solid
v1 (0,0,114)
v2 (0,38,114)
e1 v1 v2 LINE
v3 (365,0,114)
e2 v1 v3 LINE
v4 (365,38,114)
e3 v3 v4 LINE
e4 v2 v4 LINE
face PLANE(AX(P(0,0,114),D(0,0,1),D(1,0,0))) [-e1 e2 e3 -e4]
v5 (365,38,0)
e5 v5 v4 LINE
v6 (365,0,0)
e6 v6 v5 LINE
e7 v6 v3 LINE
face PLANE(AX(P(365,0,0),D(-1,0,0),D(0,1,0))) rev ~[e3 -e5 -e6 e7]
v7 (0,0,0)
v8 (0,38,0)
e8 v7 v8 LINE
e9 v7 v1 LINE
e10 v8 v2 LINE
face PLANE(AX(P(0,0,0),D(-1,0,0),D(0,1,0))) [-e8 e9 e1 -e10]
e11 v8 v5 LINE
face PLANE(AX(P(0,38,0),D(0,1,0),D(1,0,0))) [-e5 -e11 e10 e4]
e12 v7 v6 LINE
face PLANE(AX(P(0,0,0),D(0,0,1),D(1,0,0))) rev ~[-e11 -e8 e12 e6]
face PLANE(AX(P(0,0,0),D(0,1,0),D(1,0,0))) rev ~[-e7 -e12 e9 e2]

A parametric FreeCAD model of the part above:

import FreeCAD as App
import Part
import Sketcher

V = App.Vector


def add_polygon(sketch, points):
    """Adds a closed chain of lines whose ends are joined by coincident constraints."""
    first, n = sketch.GeometryCount, len(points)
    for a, b in zip(points, points[1:] + points[:1]):
        sketch.addGeometry(Part.LineSegment(App.Vector(*a, 0), App.Vector(*b, 0)), False)
    for i in range(n):
        sketch.addConstraint(Sketcher.Constraint("Coincident", first + i, 2, first + (i + 1) % n, 1))

doc = App.newDocument("Part")
body = doc.addObject("PartDesign::Body", "Body")

# Sketch on XY plane
sketch1 = body.newObject("Sketcher::SketchObject", "Sketch")
sketch1.AttachmentSupport = (doc.getObject("XY_Plane"), [""])
sketch1.MapMode = "FlatFace"
add_polygon(sketch1, [(0, 38), (0, 0), (365, 0), (365, 38)])  # lines 0-3
sketch1.addConstraint([
    Sketcher.Constraint("Vertical", 0),
    Sketcher.Constraint("Horizontal", 1),
    Sketcher.Constraint("Vertical", 2),
    Sketcher.Constraint("Horizontal", 3),
    Sketcher.Constraint("Coincident", 0, 2, -1, 1),
    Sketcher.Constraint("DistanceX", 1, 1, 1, 2, 365.0),
    Sketcher.Constraint("DistanceY", 0, 2, 0, 1, 38.0),
])
pad1 = body.newObject("PartDesign::Pad", "Pad")
pad1.Profile = sketch1
pad1.Length = 114

doc.recompute()
